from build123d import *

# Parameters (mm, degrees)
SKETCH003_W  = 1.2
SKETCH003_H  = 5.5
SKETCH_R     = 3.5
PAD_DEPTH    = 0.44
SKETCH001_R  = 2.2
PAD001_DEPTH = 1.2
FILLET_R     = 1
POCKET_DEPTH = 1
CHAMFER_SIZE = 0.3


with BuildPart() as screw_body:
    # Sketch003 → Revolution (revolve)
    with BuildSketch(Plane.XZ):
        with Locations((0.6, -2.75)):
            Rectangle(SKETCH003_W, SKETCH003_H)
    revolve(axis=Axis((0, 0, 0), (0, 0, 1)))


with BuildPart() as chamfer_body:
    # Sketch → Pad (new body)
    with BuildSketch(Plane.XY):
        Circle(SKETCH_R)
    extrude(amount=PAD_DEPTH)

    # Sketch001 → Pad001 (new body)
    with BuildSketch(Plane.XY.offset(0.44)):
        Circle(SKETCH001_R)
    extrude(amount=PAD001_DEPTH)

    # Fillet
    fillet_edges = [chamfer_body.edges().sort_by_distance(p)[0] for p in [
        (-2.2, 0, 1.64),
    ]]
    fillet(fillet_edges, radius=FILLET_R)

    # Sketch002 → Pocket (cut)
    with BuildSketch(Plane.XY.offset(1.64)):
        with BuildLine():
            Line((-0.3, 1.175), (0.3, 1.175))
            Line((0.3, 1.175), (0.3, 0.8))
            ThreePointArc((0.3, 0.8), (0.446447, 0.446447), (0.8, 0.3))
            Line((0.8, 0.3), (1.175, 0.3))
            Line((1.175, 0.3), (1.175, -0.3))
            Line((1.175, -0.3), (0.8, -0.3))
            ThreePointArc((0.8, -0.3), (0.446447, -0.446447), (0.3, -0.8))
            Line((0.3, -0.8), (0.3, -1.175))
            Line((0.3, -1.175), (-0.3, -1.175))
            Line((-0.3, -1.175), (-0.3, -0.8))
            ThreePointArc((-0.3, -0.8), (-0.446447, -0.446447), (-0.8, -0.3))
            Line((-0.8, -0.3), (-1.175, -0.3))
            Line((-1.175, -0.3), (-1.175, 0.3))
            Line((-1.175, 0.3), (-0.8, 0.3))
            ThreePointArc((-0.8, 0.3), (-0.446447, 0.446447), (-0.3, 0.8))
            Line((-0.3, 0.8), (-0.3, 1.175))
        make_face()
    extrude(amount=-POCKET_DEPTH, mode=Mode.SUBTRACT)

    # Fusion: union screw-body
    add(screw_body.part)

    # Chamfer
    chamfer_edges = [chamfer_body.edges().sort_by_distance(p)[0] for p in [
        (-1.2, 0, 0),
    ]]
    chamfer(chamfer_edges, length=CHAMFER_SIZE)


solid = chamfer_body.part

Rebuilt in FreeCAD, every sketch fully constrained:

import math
import FreeCAD as App
import Part
import Sketcher

V = App.Vector
Q = App.Units.Quantity


def edges_at(feature, points):
    """Names of the edges that pass closest to the given points."""
    edges = feature.Shape.Edges
    near = lambda p: min(range(len(edges)), key=lambda i: edges[i].distToShape(Part.Vertex(*p))[0])
    return sorted({f"Edge{near(p) + 1}" for p in points})


def add_polygon(sketch, points):
    """Adds a closed chain of lines whose ends are joined by coincident constraints."""
    first, n = sketch.GeometryCount, len(points)
    for a, b in zip(points, points[1:] + points[:1]):
        sketch.addGeometry(Part.LineSegment(App.Vector(*a, 0), App.Vector(*b, 0)), False)
    for i in range(n):
        sketch.addConstraint(Sketcher.Constraint("Coincident", first + i, 2, first + (i + 1) % n, 1))

doc = App.newDocument("Part")
body = doc.addObject("PartDesign::Body", "Body")

sketch1 = doc.addObject("Sketcher::SketchObject", "Sketch")
body.addObject(sketch1)
sketch1.AttachmentSupport = (doc.XZ_Plane, [""])
sketch1.MapMode = "FlatFace"
add_polygon(sketch1, [(0, 0), (0, -5.5), (1.2, -5.5), (1.2, 0)])
sketch1.addConstraint(Sketcher.Constraint("Vertical", 0))
sketch1.addConstraint(Sketcher.Constraint("Horizontal", 1))
sketch1.addConstraint(Sketcher.Constraint("Vertical", 2))
sketch1.addConstraint(Sketcher.Constraint("Horizontal", 3))
sketch1.addConstraint(Sketcher.Constraint("Coincident", 3, 2, -1, 1))
sketch1.addConstraint(Sketcher.Constraint("DistanceX", 1, 1, 1, 2, Q("1.2 mm")))
sketch1.addConstraint(Sketcher.Constraint("DistanceY", 0, 2, 0, 1, Q("5.5 mm")))
revolution = doc.addObject("PartDesign::Revolution", "Revolution")
body.addObject(revolution)
revolution.Profile = sketch1
revolution.ReferenceAxis = (sketch1, ["V_Axis"])
revolution.Angle = 360
body2 = doc.addObject("PartDesign::Body", "Body001")

sketch2 = doc.addObject("Sketcher::SketchObject", "Sketch001")
body2.addObject(sketch2)
sketch2.AttachmentSupport = (doc.getObject("XY_Plane001"), [""])
sketch2.MapMode = "FlatFace"
sketch2.addGeometry(Part.Circle(V(0, 0, 0), V(0, 0, 1), 3.5), False)
sketch2.addConstraint(Sketcher.Constraint("Coincident", 0, 3, -1, 1))
sketch2.addConstraint(Sketcher.Constraint("Diameter", 0, Q("7 mm")))
pad1 = doc.addObject("PartDesign::Pad", "Pad")
body2.addObject(pad1)
pad1.Profile = sketch2
pad1.Length = 0.44

sketch3 = doc.addObject("Sketcher::SketchObject", "Sketch002")
body2.addObject(sketch3)
sketch3.AttachmentSupport = (doc.getObject("XY_Plane001"), [""])
sketch3.MapMode = "FlatFace"
sketch3.AttachmentOffset = App.Placement(V(0, 0, 0.44), App.Rotation())
sketch3.addGeometry(Part.Circle(V(0, 0, 0), V(0, 0, 1), 2.2), False)
sketch3.addConstraint(Sketcher.Constraint("Coincident", 0, 3, -1, 1))
sketch3.addConstraint(Sketcher.Constraint("Diameter", 0, Q("4.4 mm")))
pad2 = doc.addObject("PartDesign::Pad", "Pad001")
body2.addObject(pad2)
pad2.Profile = sketch3
pad2.Length = 1.2
doc.recompute()

fillet = doc.addObject("PartDesign::Fillet", "Fillet")
body2.addObject(fillet)
fillet.Base = (pad2, edges_at(pad2, [(-2.2, 0, 1.64)]))
fillet.Radius = 1

sketch4 = doc.addObject("Sketcher::SketchObject", "Sketch003")
body2.addObject(sketch4)
sketch4.AttachmentSupport = (doc.getObject("XY_Plane001"), [""])
sketch4.MapMode = "FlatFace"
sketch4.AttachmentOffset = App.Placement(V(0, 0, 1.64), App.Rotation())
sketch4.addGeometry(Part.LineSegment(V(0.3, 1.175, 0), V(-0.3, 1.175, 0)), False)
sketch4.addGeometry(Part.LineSegment(V(-0.3, 1.175, 0), V(-0.3, 0.8, 0)), False)
sketch4.addGeometry(Part.ArcOfCircle(Part.Circle(V(-0.800001, 0.800001, 0), V(0, 0, 1), 0.500001), math.radians(-89.999847), math.radians(-0.000153)), False)
sketch4.addGeometry(Part.LineSegment(V(-0.8, 0.3, 0), V(-1.175, 0.3, 0)), False)
sketch4.addGeometry(Part.LineSegment(V(-1.175, 0.3, 0), V(-1.175, -0.3, 0)), False)
sketch4.addGeometry(Part.LineSegment(V(-1.175, -0.3, 0), V(-0.8, -0.3, 0)), False)
sketch4.addGeometry(Part.ArcOfCircle(Part.Circle(V(-0.800001, -0.800001, 0), V(0, 0, 1), 0.500001), math.radians(0.000153), math.radians(89.999847)), False)
sketch4.addGeometry(Part.LineSegment(V(-0.3, -0.8, 0), V(-0.3, -1.175, 0)), False)
sketch4.addGeometry(Part.LineSegment(V(-0.3, -1.175, 0), V(0.3, -1.175, 0)), False)
sketch4.addGeometry(Part.LineSegment(V(0.3, -1.175, 0), V(0.3, -0.8, 0)), False)
sketch4.addGeometry(Part.ArcOfCircle(Part.Circle(V(0.800001, -0.800001, 0), V(0, 0, 1), 0.500001), math.radians(90.000153), math.radians(179.999847)), False)
sketch4.addGeometry(Part.LineSegment(V(0.8, -0.3, 0), V(1.175, -0.3, 0)), False)
sketch4.addGeometry(Part.LineSegment(V(1.175, -0.3, 0), V(1.175, 0.3, 0)), False)
sketch4.addGeometry(Part.LineSegment(V(1.175, 0.3, 0), V(0.8, 0.3, 0)), False)
sketch4.addGeometry(Part.ArcOfCircle(Part.Circle(V(0.800001, 0.800001, 0), V(0, 0, 1), 0.500001), math.radians(-179.999847), math.radians(-90.000153)), False)
sketch4.addGeometry(Part.LineSegment(V(0.3, 0.8, 0), V(0.3, 1.175, 0)), False)
sketch4.addConstraint(Sketcher.Constraint("Coincident", 0, 2, 1, 1))
sketch4.addConstraint(Sketcher.Constraint("Coincident", 1, 2, 2, 2))
sketch4.addConstraint(Sketcher.Constraint("Coincident", 2, 1, 3, 1))
sketch4.addConstraint(Sketcher.Constraint("Coincident", 3, 2, 4, 1))
sketch4.addConstraint(Sketcher.Constraint("Coincident", 4, 2, 5, 1))
sketch4.addConstraint(Sketcher.Constraint("Coincident", 5, 2, 6, 2))
sketch4.addConstraint(Sketcher.Constraint("Coincident", 6, 1, 7, 1))
sketch4.addConstraint(Sketcher.Constraint("Coincident", 7, 2, 8, 1))
sketch4.addConstraint(Sketcher.Constraint("Coincident", 8, 2, 9, 1))
sketch4.addConstraint(Sketcher.Constraint("Coincident", 9, 2, 10, 2))
sketch4.addConstraint(Sketcher.Constraint("Coincident", 10, 1, 11, 1))
sketch4.addConstraint(Sketcher.Constraint("Coincident", 11, 2, 12, 1))
sketch4.addConstraint(Sketcher.Constraint("Coincident", 12, 2, 13, 1))
sketch4.addConstraint(Sketcher.Constraint("Coincident", 13, 2, 14, 2))
sketch4.addConstraint(Sketcher.Constraint("Coincident", 14, 1, 15, 1))
sketch4.addConstraint(Sketcher.Constraint("Coincident", 15, 2, 0, 1))
sketch4.addConstraint(Sketcher.Constraint("Horizontal", 0))
sketch4.addConstraint(Sketcher.Constraint("Vertical", 1))
sketch4.addConstraint(Sketcher.Constraint("Horizontal", 3))
sketch4.addConstraint(Sketcher.Constraint("Vertical", 4))
sketch4.addConstraint(Sketcher.Constraint("Horizontal", 5))
sketch4.addConstraint(Sketcher.Constraint("Vertical", 7))
sketch4.addConstraint(Sketcher.Constraint("Horizontal", 8))
sketch4.addConstraint(Sketcher.Constraint("Vertical", 9))
sketch4.addConstraint(Sketcher.Constraint("Horizontal", 11))
sketch4.addConstraint(Sketcher.Constraint("Vertical", 12))
sketch4.addConstraint(Sketcher.Constraint("Horizontal", 13))
sketch4.addConstraint(Sketcher.Constraint("Vertical", 15))
sketch4.addConstraint(Sketcher.Constraint("Equal", 2, 6))
sketch4.addConstraint(Sketcher.Constraint("Equal", 6, 10))
sketch4.addConstraint(Sketcher.Constraint("Equal", 10, 14))
sketch4.addConstraint(Sketcher.Constraint("Symmetric", 2, 3, 10, 3, -1, 1))
sketch4.addConstraint(Sketcher.Constraint("Symmetric", 6, 3, 14, 3, -1, 1))
sketch4.addConstraint(Sketcher.Constraint("Symmetric", 6, 3, 10, 3, -2))
sketch4.addConstraint(Sketcher.Constraint("Horizontal", 14, 3, 1, 2))
sketch4.addConstraint(Sketcher.Constraint("Horizontal", 10, 3, 6, 1))
sketch4.addConstraint(Sketcher.Constraint("Horizontal", 6, 1, 9, 2))
sketch4.addConstraint(Sketcher.Constraint("Horizontal", 1, 2, 14, 1))
sketch4.addConstraint(Sketcher.Constraint("Vertical", 6, 3, 2, 1))
sketch4.addConstraint(Sketcher.Constraint("Vertical", 2, 1, 5, 2))
sketch4.addConstraint(Sketcher.Constraint("Vertical", 14, 3, 10, 1))
sketch4.addConstraint(Sketcher.Constraint("Vertical", 10, 1, 13, 2))
sketch4.addConstraint(Sketcher.Constraint("Equal", 5, 11))
sketch4.addConstraint(Sketcher.Constraint("Equal", 13, 1))
sketch4.addConstraint(Sketcher.Constraint("Equal", 8, 4))
sketch4.addConstraint(Sketcher.Constraint("Equal", 1, 7))
sketch4.addConstraint(Sketcher.Constraint("Radius", 2, Q("0.500001 mm")))
sketch4.addConstraint(Sketcher.Constraint("DistanceX", 0, 2, 0, 1, Q("0.6 mm")))
sketch4.addConstraint(Sketcher.Constraint("DistanceX", 3, 2, 3, 1, Q("0.375 mm")))
pocket1 = doc.addObject("PartDesign::Pocket", "Pocket")
body2.addObject(pocket1)
pocket1.Profile = sketch4
pocket1.Length = 1
doc.recompute()

boolean = doc.addObject("PartDesign::Boolean", "Boolean")
body2.addObject(boolean)
boolean.Type = "Fuse"
boolean.addObjects([body])
doc.recompute()

chamfer = doc.addObject("PartDesign::Chamfer", "Chamfer")
body2.addObject(chamfer)
chamfer.Base = (boolean, edges_at(boolean, [(-1.2, 0, 0)]))
chamfer.Size = 0.3

doc.recompute()
